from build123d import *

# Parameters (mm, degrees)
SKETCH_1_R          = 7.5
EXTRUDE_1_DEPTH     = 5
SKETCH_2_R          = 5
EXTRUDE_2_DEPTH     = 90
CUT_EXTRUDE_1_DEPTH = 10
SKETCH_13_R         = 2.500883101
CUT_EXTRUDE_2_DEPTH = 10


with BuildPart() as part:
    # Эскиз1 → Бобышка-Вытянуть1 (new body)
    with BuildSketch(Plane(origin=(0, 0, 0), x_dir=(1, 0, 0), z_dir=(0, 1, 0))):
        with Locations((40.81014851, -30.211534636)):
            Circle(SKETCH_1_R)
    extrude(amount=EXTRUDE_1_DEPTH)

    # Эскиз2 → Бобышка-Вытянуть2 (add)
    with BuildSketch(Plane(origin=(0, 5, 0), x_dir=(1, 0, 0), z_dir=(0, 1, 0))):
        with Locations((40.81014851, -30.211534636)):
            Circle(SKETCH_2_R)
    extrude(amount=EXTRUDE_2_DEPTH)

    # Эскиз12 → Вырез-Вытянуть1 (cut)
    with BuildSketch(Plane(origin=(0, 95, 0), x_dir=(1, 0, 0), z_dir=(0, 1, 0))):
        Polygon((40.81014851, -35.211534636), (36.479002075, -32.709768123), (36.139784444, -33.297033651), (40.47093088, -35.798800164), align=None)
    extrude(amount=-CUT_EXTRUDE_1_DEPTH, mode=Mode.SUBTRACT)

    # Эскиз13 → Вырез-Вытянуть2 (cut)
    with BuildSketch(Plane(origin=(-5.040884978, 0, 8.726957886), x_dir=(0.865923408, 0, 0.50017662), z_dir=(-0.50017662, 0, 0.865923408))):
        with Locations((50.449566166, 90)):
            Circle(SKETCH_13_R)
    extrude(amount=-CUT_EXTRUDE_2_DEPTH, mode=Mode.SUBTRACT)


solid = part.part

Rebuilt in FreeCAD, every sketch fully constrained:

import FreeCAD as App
import Part
import Sketcher
from FreeCAD import Vector
Q = App.Units.Quantity

doc = App.newDocument("Part")
body = doc.addObject("PartDesign::Body", "Body")

# Sketch on XZ plane
sketch1 = body.newObject("Sketcher::SketchObject", "Sketch")
sketch1.AttachmentSupport = (doc.getObject("XZ_Plane"), [""])
sketch1.MapMode = "FlatFace"
sketch1.addGeometry(Part.Circle(Vector(40.810149, 30.211535, 0), Vector(0, 0, 1), 7.5), False)
sketch1.addConstraint([
    Sketcher.Constraint("Diameter", 0, Q("15 mm")),
    Sketcher.Constraint("DistanceX", -1, 1, 0, 3, Q("40.810149 mm")),
    Sketcher.Constraint("DistanceY", -1, 1, 0, 3, Q("30.211535 mm")),
])
pad1 = body.newObject("PartDesign::Pad", "Pad")
pad1.Profile = sketch1
pad1.Length = 5
pad1.Reversed = True

# Sketch on XZ plane
sketch2 = body.newObject("Sketcher::SketchObject", "Sketch001")
sketch2.AttachmentSupport = (doc.getObject("XZ_Plane"), [""])
sketch2.MapMode = "FlatFace"
sketch2.AttachmentOffset = App.Placement(Vector(0, 0, -5), App.Rotation())
sketch2.addGeometry(Part.Circle(Vector(40.810149, 30.211535, 0), Vector(0, 0, 1), 5), False)
sketch2.addConstraint([
    Sketcher.Constraint("Diameter", 0, Q("10 mm")),
    Sketcher.Constraint("DistanceX", -1, 1, 0, 3, Q("40.810149 mm")),
    Sketcher.Constraint("DistanceY", -1, 1, 0, 3, Q("30.211535 mm")),
])
pad2 = body.newObject("PartDesign::Pad", "Pad001")
pad2.Profile = sketch2
pad2.Length = 90
pad2.Reversed = True

# Sketch on XZ plane
sketch3 = body.newObject("Sketcher::SketchObject", "Sketch002")
sketch3.AttachmentSupport = (doc.getObject("XZ_Plane"), [""])
sketch3.MapMode = "FlatFace"
sketch3.AttachmentOffset = App.Placement(Vector(0, 0, -95), App.Rotation())
sketch3.addGeometry([
    Part.LineSegment(Vector(40.810149, 35.211535, 0), Vector(36.479002, 32.709768, 0)),
    Part.LineSegment(Vector(36.479002, 32.709768, 0), Vector(36.139784, 33.297034, 0)),
    Part.LineSegment(Vector(36.139784, 33.297034, 0), Vector(40.470931, 35.7988, 0)),
    Part.LineSegment(Vector(40.470931, 35.7988, 0), Vector(40.810149, 35.211535, 0)),
], False)
sketch3.addConstraint([
    Sketcher.Constraint("Coincident", 0, 2, 1, 1),
    Sketcher.Constraint("Coincident", 1, 2, 2, 1),
    Sketcher.Constraint("Coincident", 2, 2, 3, 1),
    Sketcher.Constraint("Coincident", 3, 2, 0, 1),
    Sketcher.Constraint("Perpendicular", 0, 1),
    Sketcher.Constraint("Perpendicular", 1, 2),
    Sketcher.Constraint("Perpendicular", 2, 3),
    Sketcher.Constraint("DistanceY", -1, 1, 2, 2, Q("35.7988 mm")),
    Sketcher.Constraint("DistanceY", 1, 2, 3, 2, Q("1.914501 mm")),
    Sketcher.Constraint("DistanceY", -1, 1, 0, 2, Q("32.709768 mm")),
    Sketcher.Constraint("DistanceX", -1, 1, 2, 2, Q("40.470931 mm")),
    Sketcher.Constraint("DistanceX", -1, 1, 3, 2, Q("40.810149 mm")),
])
pocket1 = body.newObject("PartDesign::Pocket", "Pocket")
pocket1.Profile = sketch3
pocket1.Length = 10
pocket1.Reversed = True

# Sketch on an angled plane
sketch4 = body.newObject("Sketcher::SketchObject", "Sketch003")
sketch4.Placement = App.Placement(Vector(-5.040885, 0, 8.726958), App.Rotation(Vector(0.865923408, 0, 0.50017662), Vector(0, 1, 0), Vector(-0.50017662, 0, 0.865923408), "ZXY"))
sketch4.addGeometry(Part.Circle(Vector(50.449566, 90, 0), Vector(0, 0, 1), 2.500883), False)
sketch4.addConstraint([
    Sketcher.Constraint("DistanceY", -1, 1, 0, 3, Q("90 mm")),
    Sketcher.Constraint("Diameter", 0, Q("5.001766 mm")),
    Sketcher.Constraint("DistanceX", -1, 1, 0, 3, Q("50.449566 mm")),
])
pocket2 = body.newObject("PartDesign::Pocket", "Pocket001")
pocket2.Profile = sketch4
pocket2.Length = 10

doc.recompute()
